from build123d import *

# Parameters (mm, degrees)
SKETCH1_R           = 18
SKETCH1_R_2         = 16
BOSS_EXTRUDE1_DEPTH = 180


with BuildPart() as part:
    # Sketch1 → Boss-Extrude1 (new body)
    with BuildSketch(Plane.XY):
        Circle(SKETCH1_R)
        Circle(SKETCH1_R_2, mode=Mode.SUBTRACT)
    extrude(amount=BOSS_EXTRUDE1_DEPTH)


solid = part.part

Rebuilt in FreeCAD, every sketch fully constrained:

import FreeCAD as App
import Part
import Sketcher
Q = App.Units.Quantity

doc = App.newDocument("Part")
params = doc.addObject("Spreadsheet::Sheet", "Params")
for row, (alias, value) in enumerate([
    ("sketch1_diameter", "36 mm"),
    ("sketch1_diameter2", "32 mm"),
    ("pad1_length", "180 mm"),
], start=1):
    params.set(f"A{row}", alias)
    params.set(f"B{row}", "=" + value)
    params.setAlias(f"B{row}", alias)

body = doc.addObject("PartDesign::Body", "Body")

# Sketch on XY plane
sketch1 = doc.addObject("Sketcher::SketchObject", "Sketch")
body.addObject(sketch1)
sketch1.AttachmentSupport = (doc.XY_Plane, [""])
sketch1.MapMode = "FlatFace"
sketch1.addGeometry([
    Part.Circle(App.Vector(0, 0, 0), App.Vector(0, 0, 1), 18),
    Part.Circle(App.Vector(0, 0, 0), App.Vector(0, 0, 1), 16),
], False)
sketch1.addConstraint([
    Sketcher.Constraint("Coincident", 0, 3, -1, 1),
    Sketcher.Constraint("Coincident", 1, 3, -1, 1),
    Sketcher.Constraint("Diameter", 0, Q("36 mm")),
    Sketcher.Constraint("Diameter", 1, Q("32 mm")),
])
sketch1.setExpression("Constraints[2]", "Params.sketch1_diameter")
sketch1.setExpression("Constraints[3]", "Params.sketch1_diameter2")
pad1 = doc.addObject("PartDesign::Pad", "Pad")
body.addObject(pad1)
pad1.Profile = sketch1
pad1.setExpression("Length", "Params.pad1_length")

doc.recompute()
